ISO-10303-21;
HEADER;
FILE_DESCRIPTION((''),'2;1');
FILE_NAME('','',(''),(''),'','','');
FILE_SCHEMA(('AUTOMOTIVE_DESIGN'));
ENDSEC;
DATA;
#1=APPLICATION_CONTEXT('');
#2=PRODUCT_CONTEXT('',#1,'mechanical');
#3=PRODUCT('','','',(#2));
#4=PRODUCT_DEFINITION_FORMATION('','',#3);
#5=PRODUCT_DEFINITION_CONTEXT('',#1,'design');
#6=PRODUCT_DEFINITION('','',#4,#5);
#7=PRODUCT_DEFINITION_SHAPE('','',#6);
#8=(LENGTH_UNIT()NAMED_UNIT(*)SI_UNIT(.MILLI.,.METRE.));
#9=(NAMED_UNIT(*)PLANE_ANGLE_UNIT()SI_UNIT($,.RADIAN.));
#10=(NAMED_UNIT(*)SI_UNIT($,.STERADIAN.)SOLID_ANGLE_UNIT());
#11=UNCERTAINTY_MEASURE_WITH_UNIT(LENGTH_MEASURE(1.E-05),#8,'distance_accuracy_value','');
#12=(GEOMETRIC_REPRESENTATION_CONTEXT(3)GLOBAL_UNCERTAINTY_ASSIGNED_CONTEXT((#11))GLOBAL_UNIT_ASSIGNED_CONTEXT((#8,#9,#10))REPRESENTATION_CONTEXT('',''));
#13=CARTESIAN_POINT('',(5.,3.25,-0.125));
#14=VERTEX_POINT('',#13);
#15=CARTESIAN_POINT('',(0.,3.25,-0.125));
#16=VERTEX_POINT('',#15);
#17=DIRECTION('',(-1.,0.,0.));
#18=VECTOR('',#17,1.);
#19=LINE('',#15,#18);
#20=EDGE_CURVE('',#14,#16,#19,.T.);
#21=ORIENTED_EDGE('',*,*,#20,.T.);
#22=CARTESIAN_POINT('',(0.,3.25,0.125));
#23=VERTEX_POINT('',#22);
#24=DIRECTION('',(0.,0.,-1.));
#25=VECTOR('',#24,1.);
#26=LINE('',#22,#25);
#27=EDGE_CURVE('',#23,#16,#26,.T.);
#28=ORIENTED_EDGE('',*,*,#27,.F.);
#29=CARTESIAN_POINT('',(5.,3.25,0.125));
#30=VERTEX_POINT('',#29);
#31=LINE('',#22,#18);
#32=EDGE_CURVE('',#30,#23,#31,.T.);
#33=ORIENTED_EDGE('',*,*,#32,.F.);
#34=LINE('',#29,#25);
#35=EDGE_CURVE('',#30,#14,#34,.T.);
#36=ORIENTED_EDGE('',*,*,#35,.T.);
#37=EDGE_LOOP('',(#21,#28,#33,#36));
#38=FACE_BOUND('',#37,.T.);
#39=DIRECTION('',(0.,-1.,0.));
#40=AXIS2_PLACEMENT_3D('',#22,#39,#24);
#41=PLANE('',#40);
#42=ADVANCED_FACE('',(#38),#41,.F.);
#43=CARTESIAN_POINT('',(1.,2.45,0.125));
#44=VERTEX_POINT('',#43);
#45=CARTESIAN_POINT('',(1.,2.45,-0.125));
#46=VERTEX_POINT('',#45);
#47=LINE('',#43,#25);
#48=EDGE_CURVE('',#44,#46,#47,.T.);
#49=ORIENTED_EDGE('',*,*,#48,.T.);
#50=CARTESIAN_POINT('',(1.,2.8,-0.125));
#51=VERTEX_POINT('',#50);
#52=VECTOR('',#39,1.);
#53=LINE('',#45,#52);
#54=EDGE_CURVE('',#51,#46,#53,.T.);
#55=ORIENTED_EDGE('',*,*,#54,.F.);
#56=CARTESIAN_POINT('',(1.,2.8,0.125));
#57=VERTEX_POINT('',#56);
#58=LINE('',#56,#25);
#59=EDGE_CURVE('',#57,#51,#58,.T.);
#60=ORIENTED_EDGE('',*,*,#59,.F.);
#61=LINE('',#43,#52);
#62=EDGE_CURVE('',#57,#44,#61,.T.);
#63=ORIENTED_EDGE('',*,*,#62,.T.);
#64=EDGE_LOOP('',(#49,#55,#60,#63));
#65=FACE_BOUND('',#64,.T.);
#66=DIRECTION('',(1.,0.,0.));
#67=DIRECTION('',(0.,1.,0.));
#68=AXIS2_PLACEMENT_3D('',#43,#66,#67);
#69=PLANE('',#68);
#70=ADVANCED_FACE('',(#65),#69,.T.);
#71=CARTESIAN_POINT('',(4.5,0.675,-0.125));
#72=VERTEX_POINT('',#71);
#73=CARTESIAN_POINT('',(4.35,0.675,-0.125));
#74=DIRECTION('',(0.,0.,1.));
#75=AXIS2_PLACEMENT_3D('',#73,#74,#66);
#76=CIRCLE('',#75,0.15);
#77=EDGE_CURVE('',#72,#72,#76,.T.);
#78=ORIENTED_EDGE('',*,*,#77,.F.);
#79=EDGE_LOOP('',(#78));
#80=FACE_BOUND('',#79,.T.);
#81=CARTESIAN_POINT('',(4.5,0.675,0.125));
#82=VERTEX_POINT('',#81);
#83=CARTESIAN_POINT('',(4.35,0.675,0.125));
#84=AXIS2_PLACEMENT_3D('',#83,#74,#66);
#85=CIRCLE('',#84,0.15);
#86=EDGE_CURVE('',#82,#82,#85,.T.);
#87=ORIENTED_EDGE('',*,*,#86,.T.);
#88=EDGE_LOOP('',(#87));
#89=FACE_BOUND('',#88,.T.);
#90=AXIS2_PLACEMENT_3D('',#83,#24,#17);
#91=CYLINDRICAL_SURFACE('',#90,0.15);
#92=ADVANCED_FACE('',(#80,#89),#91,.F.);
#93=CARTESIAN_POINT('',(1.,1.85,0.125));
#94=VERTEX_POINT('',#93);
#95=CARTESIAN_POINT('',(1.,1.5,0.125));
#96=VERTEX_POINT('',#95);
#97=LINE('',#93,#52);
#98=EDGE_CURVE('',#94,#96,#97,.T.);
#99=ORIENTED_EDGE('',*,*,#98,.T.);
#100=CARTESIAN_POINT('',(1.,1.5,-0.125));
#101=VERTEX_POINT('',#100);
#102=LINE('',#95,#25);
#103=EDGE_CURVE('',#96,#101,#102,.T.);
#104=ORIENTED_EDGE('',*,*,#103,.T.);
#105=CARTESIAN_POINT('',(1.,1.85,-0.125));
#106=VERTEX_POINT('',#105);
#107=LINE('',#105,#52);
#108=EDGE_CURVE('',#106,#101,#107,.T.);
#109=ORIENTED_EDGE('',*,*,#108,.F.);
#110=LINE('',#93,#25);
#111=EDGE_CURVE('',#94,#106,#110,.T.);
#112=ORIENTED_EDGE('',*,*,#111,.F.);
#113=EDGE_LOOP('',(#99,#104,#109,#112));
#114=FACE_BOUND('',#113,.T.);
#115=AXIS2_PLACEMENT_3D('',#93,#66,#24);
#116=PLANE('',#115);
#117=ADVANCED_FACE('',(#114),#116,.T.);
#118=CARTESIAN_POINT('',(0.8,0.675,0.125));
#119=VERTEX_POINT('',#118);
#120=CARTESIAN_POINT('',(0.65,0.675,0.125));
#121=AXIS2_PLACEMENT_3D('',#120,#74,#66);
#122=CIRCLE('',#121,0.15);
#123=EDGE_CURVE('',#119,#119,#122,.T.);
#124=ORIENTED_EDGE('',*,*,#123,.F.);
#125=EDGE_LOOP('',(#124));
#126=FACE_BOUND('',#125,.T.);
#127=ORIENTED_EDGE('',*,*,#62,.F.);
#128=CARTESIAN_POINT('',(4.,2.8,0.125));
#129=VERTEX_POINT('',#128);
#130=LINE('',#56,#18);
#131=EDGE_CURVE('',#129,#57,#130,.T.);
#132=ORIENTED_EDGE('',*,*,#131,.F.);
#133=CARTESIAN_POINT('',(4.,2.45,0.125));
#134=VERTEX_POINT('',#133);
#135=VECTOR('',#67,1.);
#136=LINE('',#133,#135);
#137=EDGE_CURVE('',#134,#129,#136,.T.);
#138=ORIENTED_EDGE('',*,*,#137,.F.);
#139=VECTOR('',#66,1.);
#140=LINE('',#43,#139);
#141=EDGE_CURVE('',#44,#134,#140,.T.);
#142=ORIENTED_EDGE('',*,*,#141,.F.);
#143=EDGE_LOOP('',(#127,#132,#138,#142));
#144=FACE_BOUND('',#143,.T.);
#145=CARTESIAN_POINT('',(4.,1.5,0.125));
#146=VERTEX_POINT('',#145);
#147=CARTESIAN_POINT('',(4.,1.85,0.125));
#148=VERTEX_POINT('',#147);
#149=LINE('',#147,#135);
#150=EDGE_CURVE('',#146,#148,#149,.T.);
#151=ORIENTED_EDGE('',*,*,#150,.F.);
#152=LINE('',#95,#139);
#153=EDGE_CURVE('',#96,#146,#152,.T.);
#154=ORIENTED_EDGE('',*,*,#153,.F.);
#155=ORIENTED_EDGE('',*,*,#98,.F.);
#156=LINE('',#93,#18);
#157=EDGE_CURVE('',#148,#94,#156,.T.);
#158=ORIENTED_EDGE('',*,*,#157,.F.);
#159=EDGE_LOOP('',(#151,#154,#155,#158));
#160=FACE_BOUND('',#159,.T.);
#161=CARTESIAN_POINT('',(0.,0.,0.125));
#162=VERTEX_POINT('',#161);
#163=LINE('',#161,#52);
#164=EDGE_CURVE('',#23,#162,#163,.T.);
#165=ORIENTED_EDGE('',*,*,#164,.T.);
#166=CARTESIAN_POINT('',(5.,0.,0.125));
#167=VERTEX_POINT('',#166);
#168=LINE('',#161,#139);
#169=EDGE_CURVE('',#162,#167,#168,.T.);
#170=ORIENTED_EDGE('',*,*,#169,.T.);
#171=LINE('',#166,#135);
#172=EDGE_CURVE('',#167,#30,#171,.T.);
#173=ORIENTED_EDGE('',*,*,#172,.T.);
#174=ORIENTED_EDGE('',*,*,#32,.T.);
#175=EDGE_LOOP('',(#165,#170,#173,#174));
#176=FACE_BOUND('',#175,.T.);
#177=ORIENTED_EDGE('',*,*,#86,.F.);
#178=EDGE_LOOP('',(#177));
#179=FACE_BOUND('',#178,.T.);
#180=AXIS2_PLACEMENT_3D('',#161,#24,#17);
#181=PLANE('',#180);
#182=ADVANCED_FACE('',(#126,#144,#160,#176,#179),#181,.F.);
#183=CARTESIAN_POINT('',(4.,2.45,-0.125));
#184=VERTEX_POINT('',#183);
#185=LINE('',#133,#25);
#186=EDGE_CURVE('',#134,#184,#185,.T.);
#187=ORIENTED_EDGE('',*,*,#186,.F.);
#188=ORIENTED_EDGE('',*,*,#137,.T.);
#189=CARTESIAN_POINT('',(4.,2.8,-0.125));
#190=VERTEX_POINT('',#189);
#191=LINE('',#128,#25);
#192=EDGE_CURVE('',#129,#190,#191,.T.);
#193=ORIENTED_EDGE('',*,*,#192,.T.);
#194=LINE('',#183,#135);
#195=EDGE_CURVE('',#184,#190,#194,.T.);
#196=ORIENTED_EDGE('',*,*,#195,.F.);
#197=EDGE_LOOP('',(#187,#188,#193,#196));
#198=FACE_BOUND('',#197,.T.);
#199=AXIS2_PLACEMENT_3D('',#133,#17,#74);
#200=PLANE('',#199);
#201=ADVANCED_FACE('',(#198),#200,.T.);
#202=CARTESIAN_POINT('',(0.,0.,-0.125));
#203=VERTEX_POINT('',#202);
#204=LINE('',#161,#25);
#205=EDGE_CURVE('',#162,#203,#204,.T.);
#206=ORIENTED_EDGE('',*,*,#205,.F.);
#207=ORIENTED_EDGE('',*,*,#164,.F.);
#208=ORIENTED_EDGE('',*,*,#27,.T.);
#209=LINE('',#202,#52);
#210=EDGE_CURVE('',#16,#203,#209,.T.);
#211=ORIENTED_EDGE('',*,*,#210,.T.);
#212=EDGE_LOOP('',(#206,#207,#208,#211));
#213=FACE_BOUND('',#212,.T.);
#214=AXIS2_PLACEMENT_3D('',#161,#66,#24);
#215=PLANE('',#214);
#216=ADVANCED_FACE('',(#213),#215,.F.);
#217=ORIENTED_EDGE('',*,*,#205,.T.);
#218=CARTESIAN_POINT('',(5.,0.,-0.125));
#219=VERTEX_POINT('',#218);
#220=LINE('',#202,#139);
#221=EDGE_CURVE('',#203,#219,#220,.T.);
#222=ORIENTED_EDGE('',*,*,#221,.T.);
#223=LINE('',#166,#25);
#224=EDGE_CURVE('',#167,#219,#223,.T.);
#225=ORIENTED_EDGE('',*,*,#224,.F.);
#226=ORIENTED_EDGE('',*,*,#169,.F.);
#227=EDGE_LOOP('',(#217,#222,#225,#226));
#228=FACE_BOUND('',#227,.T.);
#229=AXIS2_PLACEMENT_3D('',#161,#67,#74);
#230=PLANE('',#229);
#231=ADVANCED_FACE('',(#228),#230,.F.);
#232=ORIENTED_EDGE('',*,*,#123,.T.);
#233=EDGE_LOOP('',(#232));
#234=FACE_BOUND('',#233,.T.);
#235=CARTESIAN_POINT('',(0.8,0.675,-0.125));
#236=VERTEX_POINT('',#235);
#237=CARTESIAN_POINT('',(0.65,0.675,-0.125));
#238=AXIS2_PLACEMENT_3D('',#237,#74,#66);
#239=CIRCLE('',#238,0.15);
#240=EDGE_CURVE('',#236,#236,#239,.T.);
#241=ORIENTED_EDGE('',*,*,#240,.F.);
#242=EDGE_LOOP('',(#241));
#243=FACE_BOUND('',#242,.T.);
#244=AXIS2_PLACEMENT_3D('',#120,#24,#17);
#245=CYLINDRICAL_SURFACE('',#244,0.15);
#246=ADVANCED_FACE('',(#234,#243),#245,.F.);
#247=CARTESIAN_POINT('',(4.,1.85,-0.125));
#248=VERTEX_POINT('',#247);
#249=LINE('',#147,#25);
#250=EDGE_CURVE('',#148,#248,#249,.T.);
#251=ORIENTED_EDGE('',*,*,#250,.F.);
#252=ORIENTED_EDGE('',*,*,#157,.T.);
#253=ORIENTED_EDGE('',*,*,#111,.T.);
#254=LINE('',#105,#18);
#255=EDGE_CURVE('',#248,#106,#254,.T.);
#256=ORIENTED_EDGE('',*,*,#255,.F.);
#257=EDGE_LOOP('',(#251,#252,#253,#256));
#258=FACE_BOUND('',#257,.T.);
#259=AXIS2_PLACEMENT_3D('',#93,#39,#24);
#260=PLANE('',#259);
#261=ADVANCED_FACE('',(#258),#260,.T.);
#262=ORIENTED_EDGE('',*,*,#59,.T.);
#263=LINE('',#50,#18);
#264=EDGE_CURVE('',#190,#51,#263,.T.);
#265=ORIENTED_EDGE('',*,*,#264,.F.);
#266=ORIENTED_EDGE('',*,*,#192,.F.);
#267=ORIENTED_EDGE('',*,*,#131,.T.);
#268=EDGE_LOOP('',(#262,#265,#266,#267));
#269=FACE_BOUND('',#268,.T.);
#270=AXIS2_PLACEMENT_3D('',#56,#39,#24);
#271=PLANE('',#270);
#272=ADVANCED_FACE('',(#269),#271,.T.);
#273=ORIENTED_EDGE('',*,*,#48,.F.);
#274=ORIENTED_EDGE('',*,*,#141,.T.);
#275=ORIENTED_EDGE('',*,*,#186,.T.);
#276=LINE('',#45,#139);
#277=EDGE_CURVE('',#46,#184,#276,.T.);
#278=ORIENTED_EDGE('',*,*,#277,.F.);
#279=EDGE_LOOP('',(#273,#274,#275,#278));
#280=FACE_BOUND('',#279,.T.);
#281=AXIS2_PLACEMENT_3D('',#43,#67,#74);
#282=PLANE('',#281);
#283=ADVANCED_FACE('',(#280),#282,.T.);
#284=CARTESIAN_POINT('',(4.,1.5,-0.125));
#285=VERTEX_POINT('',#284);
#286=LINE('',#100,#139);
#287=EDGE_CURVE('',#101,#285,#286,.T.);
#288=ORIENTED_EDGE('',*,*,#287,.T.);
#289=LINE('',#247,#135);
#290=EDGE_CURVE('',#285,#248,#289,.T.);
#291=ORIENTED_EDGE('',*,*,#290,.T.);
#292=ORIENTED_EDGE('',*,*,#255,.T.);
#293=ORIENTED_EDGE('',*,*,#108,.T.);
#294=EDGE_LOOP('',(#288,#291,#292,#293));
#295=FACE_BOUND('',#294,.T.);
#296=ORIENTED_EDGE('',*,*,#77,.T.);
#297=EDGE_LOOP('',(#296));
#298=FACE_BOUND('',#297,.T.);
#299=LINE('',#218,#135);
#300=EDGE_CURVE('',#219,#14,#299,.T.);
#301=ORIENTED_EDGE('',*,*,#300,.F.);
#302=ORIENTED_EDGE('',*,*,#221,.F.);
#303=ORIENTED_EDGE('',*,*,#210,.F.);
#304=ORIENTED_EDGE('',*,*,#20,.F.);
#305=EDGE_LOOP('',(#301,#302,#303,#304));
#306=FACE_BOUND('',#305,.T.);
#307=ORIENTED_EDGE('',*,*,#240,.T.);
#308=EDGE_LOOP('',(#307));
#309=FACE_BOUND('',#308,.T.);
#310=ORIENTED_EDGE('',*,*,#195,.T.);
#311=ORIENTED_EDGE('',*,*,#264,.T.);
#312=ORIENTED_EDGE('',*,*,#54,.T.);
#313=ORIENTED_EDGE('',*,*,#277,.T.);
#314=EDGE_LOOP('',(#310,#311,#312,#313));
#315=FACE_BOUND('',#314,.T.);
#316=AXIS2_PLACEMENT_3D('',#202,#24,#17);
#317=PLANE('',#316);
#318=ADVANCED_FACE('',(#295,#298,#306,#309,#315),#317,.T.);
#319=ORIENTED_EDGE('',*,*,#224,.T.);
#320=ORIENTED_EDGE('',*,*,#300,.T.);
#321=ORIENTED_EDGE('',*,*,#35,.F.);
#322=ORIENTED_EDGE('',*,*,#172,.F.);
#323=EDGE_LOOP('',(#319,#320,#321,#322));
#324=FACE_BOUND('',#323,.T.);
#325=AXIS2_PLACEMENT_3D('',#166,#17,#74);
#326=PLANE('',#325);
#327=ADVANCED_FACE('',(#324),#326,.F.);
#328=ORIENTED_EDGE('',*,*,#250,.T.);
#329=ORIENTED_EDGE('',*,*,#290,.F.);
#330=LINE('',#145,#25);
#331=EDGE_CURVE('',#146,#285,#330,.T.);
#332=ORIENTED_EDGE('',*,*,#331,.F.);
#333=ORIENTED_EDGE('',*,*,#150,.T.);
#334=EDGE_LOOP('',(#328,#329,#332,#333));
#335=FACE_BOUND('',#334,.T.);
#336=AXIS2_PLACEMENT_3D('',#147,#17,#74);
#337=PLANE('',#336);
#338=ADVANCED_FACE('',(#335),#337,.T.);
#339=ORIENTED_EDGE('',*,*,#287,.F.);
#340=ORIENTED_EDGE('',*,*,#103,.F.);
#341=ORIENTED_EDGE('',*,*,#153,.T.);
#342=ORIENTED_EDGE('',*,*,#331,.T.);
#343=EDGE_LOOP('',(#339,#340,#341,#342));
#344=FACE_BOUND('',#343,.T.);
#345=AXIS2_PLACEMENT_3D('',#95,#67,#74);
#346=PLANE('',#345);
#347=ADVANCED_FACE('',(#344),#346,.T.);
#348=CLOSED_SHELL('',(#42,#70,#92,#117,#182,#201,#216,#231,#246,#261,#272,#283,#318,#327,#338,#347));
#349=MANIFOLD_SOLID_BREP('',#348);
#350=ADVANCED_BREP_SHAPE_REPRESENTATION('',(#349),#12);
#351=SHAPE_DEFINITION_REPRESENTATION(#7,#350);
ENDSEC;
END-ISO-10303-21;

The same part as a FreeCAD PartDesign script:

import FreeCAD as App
import Part
import Sketcher

doc = App.newDocument("Part")
body = doc.addObject("PartDesign::Body", "Body")

# Sketch on XY plane
sketch1 = doc.addObject("Sketcher::SketchObject", "Sketch")
body.addObject(sketch1)
sketch1.AttachmentSupport = (doc.XY_Plane, [""])
sketch1.MapMode = "FlatFace"
sketch1.addGeometry(Part.LineSegment(App.Vector(0, 3.25, 0), App.Vector(0, 0, 0)), False)
sketch1.addGeometry(Part.LineSegment(App.Vector(0, 0, 0), App.Vector(5, 0, 0)), False)
sketch1.addGeometry(Part.LineSegment(App.Vector(5, 0, 0), App.Vector(5, 3.25, 0)), False)
sketch1.addGeometry(Part.LineSegment(App.Vector(5, 3.25, 0), App.Vector(0, 3.25, 0)), False)
sketch1.addGeometry(Part.Circle(App.Vector(0.65, 0.68, 0), App.Vector(0, 0, 1), 0.15), False)
sketch1.addGeometry(Part.Circle(App.Vector(4.35, 0.68, 0), App.Vector(0, 0, 1), 0.15), False)
sketch1.addGeometry(Part.LineSegment(App.Vector(4, 1.5, 0), App.Vector(1, 1.5, 0)), False)
sketch1.addGeometry(Part.LineSegment(App.Vector(1, 1.5, 0), App.Vector(1, 1.85, 0)), False)
sketch1.addGeometry(Part.LineSegment(App.Vector(1, 1.85, 0), App.Vector(4, 1.85, 0)), False)
sketch1.addGeometry(Part.LineSegment(App.Vector(4, 1.85, 0), App.Vector(4, 1.5, 0)), False)
sketch1.addGeometry(Part.LineSegment(App.Vector(4, 2.45, 0), App.Vector(1, 2.45, 0)), False)
sketch1.addGeometry(Part.LineSegment(App.Vector(1, 2.45, 0), App.Vector(1, 2.8, 0)), False)
sketch1.addGeometry(Part.LineSegment(App.Vector(1, 2.8, 0), App.Vector(4, 2.8, 0)), False)
sketch1.addGeometry(Part.LineSegment(App.Vector(4, 2.8, 0), App.Vector(4, 2.45, 0)), False)
sketch1.addConstraint(Sketcher.Constraint("Coincident", 0, 2, 1, 1))
sketch1.addConstraint(Sketcher.Constraint("Coincident", 1, 2, 2, 1))
sketch1.addConstraint(Sketcher.Constraint("Coincident", 2, 2, 3, 1))
sketch1.addConstraint(Sketcher.Constraint("Coincident", 3, 2, 0, 1))
sketch1.addConstraint(Sketcher.Constraint("Coincident", 6, 2, 7, 1))
sketch1.addConstraint(Sketcher.Constraint("Coincident", 7, 2, 8, 1))
sketch1.addConstraint(Sketcher.Constraint("Coincident", 8, 2, 9, 1))
sketch1.addConstraint(Sketcher.Constraint("Coincident", 9, 2, 6, 1))
sketch1.addConstraint(Sketcher.Constraint("Coincident", 10, 2, 11, 1))
sketch1.addConstraint(Sketcher.Constraint("Coincident", 11, 2, 12, 1))
sketch1.addConstraint(Sketcher.Constraint("Coincident", 12, 2, 13, 1))
sketch1.addConstraint(Sketcher.Constraint("Coincident", 13, 2, 10, 1))
sketch1.addConstraint(Sketcher.Constraint("Vertical", 0))
sketch1.addConstraint(Sketcher.Constraint("Horizontal", 1))
sketch1.addConstraint(Sketcher.Constraint("Vertical", 2))
sketch1.addConstraint(Sketcher.Constraint("Horizontal", 3))
sketch1.addConstraint(Sketcher.Constraint("Horizontal", 6))
sketch1.addConstraint(Sketcher.Constraint("Vertical", 7))
sketch1.addConstraint(Sketcher.Constraint("Horizontal", 8))
sketch1.addConstraint(Sketcher.Constraint("Vertical", 9))
sketch1.addConstraint(Sketcher.Constraint("Horizontal", 10))
sketch1.addConstraint(Sketcher.Constraint("Vertical", 11))
sketch1.addConstraint(Sketcher.Constraint("Horizontal", 12))
sketch1.addConstraint(Sketcher.Constraint("Vertical", 13))
sketch1.addConstraint(Sketcher.Constraint("Coincident", 0, 2, -1, 1))
sketch1.addConstraint(Sketcher.Constraint("Equal", 4, 5))
sketch1.addConstraint(Sketcher.Constraint("Horizontal", 4, 3, 5, 3))
sketch1.addConstraint(Sketcher.Constraint("Vertical", 7, 2, 10, 2))
sketch1.addConstraint(Sketcher.Constraint("Vertical", 9, 2, 12, 2))
sketch1.addConstraint(Sketcher.Constraint("Equal", 9, 11))
sketch1.addConstraint(Sketcher.Constraint("Diameter", 4, 0.3))
sketch1.addConstraint(Sketcher.Constraint("DistanceX", 1, 1, 1, 2, 5.0))
sketch1.addConstraint(Sketcher.Constraint("DistanceX", 6, 2, 6, 1, 3.0))
sketch1.addConstraint(Sketcher.Constraint("DistanceX", -1, 1, 6, 2, 1.0))
sketch1.addConstraint(Sketcher.Constraint("DistanceY", 0, 2, 0, 1, 3.25))
sketch1.addConstraint(Sketcher.Constraint("DistanceY", 7, 1, 7, 2, 0.35))
sketch1.addConstraint(Sketcher.Constraint("DistanceY", -1, 1, 6, 2, 1.5))
sketch1.addConstraint(Sketcher.Constraint("DistanceY", -1, 1, 11, 2, 2.8))
sketch1.addConstraint(Sketcher.Constraint("DistanceX", 4, 3, 5, 3, 3.7))
sketch1.addConstraint(Sketcher.Constraint("DistanceX", -1, 1, 4, 3, 0.65))
sketch1.addConstraint(Sketcher.Constraint("DistanceY", -1, 1, 4, 3, 0.675))
pad1 = doc.addObject("PartDesign::Pad", "Pad")
body.addObject(pad1)
pad1.Profile = sketch1
pad1.Length = 0.25
pad1.Midplane = True

doc.recompute()
